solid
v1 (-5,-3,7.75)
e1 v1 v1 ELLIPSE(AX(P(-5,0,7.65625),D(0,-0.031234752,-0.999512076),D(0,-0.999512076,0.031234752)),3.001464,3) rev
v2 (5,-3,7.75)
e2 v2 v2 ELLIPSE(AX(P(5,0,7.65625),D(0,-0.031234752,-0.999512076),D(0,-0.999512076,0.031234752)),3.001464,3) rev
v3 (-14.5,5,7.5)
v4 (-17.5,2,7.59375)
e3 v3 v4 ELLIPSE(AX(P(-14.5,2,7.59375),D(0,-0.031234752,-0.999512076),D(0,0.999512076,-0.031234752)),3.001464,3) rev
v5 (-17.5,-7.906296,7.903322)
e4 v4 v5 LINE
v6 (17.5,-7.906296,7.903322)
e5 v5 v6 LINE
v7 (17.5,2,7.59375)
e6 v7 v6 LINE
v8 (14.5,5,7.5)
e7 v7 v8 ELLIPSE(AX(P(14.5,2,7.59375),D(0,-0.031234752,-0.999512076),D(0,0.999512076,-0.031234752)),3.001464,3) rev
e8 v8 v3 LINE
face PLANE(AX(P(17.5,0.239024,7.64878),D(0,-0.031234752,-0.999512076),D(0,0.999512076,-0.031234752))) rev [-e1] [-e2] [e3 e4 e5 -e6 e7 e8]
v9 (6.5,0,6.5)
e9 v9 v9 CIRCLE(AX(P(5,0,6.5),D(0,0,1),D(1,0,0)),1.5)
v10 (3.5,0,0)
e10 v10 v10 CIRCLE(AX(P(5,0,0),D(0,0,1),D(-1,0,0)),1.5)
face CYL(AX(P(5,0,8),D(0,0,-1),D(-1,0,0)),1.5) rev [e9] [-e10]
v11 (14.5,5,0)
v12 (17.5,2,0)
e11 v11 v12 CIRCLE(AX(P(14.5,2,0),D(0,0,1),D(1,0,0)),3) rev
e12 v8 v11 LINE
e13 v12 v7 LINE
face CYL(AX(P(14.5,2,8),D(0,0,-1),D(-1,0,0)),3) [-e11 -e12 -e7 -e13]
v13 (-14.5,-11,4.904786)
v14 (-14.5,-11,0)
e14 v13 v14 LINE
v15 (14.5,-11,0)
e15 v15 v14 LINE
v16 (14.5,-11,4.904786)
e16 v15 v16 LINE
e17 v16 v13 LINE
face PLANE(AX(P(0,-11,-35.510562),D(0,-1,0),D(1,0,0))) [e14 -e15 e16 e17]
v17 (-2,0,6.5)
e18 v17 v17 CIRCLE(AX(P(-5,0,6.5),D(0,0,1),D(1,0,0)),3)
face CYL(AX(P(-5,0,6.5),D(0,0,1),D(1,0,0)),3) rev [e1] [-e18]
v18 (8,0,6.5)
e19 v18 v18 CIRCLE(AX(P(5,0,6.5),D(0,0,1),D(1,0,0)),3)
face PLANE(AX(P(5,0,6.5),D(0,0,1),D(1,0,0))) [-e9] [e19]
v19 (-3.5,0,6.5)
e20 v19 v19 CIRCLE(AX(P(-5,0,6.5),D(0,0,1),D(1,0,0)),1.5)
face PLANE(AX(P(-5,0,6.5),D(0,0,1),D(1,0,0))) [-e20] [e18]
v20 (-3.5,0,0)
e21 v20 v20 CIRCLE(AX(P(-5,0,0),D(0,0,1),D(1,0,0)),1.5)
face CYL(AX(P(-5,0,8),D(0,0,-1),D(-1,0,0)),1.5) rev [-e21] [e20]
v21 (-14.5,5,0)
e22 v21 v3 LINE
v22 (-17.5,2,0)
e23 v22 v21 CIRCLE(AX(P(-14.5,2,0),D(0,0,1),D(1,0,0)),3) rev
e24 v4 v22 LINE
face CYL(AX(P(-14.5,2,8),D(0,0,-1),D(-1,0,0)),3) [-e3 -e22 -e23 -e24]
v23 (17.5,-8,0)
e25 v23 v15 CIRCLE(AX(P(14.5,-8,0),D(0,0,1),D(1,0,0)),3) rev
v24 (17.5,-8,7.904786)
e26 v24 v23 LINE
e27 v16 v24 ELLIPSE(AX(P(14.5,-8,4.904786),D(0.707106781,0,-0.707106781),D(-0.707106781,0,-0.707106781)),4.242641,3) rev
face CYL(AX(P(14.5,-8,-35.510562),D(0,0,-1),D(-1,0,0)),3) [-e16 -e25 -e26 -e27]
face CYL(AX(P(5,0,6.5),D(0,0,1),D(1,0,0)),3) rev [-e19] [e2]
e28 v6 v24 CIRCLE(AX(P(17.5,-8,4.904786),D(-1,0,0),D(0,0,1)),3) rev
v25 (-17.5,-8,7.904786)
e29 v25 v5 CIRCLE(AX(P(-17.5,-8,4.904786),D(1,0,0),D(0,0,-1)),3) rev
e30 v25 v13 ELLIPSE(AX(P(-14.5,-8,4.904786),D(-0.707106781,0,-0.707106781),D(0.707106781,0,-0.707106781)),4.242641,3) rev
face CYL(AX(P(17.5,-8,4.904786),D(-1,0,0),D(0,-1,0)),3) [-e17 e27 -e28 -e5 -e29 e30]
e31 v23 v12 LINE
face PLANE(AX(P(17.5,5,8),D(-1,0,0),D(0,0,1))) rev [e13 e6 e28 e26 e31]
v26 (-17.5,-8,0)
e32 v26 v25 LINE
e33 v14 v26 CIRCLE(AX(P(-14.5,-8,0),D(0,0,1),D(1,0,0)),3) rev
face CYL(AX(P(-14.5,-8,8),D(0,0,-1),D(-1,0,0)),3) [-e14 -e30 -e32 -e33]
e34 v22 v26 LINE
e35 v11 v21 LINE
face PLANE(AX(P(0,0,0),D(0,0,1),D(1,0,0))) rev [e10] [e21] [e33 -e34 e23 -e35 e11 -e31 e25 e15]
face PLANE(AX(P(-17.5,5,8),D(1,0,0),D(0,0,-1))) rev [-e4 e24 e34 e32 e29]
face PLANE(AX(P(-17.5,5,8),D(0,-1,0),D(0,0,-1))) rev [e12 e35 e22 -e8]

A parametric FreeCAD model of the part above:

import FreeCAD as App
import Part
import Sketcher
from FreeCAD import Vector


def edges_at(feature, points):
    """Names of the edges that pass closest to the given points."""
    edges = feature.Shape.Edges
    near = lambda p: min(range(len(edges)), key=lambda i: edges[i].distToShape(Part.Vertex(*p))[0])
    return sorted({f"Edge{near(p) + 1}" for p in points})


def add_polygon(sketch, points):
    """Adds a closed chain of lines whose ends are joined by coincident constraints."""
    first, n = sketch.GeometryCount, len(points)
    for a, b in zip(points, points[1:] + points[:1]):
        sketch.addGeometry(Part.LineSegment(App.Vector(*a, 0), App.Vector(*b, 0)), False)
    for i in range(n):
        sketch.addConstraint(Sketcher.Constraint("Coincident", first + i, 2, first + (i + 1) % n, 1))

doc = App.newDocument("Part")
body = doc.addObject("PartDesign::Body", "Body")

# Sketch on XY plane
sketch1 = body.newObject("Sketcher::SketchObject", "Sketch")
sketch1.AttachmentSupport = (doc.getObject("XY_Plane"), [""])
sketch1.MapMode = "FlatFace"
add_polygon(sketch1, [(-17.5, 5), (-17.5, -5), (17.5, -5), (17.5, 5)])  # lines 0-3
sketch1.addGeometry(Part.Circle(Vector(-5, 0, 0), Vector(0, 0, 1), 1.5), False)  # 4
sketch1.addGeometry(Part.Circle(Vector(5, 0, 0), Vector(0, 0, 1), 1.5), False)  # 5
sketch1.addConstraint([
    Sketcher.Constraint("Vertical", 0),
    Sketcher.Constraint("Horizontal", 1),
    Sketcher.Constraint("Vertical", 2),
    Sketcher.Constraint("Horizontal", 3),
    Sketcher.Constraint("Equal", 4, 5),
    Sketcher.Constraint("Symmetric", 4, 3, 5, 3, -1, 1),
    Sketcher.Constraint("Symmetric", 0, 2, 2, 2, -1, 1),
    Sketcher.Constraint("PointOnObject", 4, 3, -1),
    Sketcher.Constraint("Diameter", 4, 3.0),
    Sketcher.Constraint("DistanceX", 1, 1, 1, 2, 35.0),
    Sketcher.Constraint("DistanceY", 0, 2, 0, 1, 10.0),
    Sketcher.Constraint("DistanceX", 4, 3, -1, 1, 5.0),
])
pad1 = body.newObject("PartDesign::Pad", "Pad")
pad1.Profile = sketch1
pad1.Length = 8

# Sketch on XY plane
sketch2 = body.newObject("Sketcher::SketchObject", "Sketch001")
sketch2.AttachmentSupport = (doc.getObject("XY_Plane"), [""])
sketch2.MapMode = "FlatFace"
sketch2.AttachmentOffset = App.Placement(Vector(0, 0, 6.5), App.Rotation())
sketch2.addGeometry([
    Part.Circle(Vector(-5, 0, 0), Vector(0, 0, 1), 3),
    Part.Circle(Vector(-5, 0, 0), Vector(0, 0, 1), 1.5),
    Part.Circle(Vector(5, 0, 0), Vector(0, 0, 1), 3),
    Part.Circle(Vector(5, 0, 0), Vector(0, 0, 1), 1.5),
], False)
sketch2.addConstraint([
    Sketcher.Constraint("Coincident", 1, 3, 0, 3),
    Sketcher.Constraint("Coincident", 3, 3, 2, 3),
    Sketcher.Constraint("Equal", 0, 2),
    Sketcher.Constraint("Equal", 1, 3),
    Sketcher.Constraint("Symmetric", 0, 3, 2, 3, -1, 1),
    Sketcher.Constraint("PointOnObject", 0, 3, -1),
    Sketcher.Constraint("Diameter", 0, 6.0),
    Sketcher.Constraint("Diameter", 1, 3.0),
    Sketcher.Constraint("DistanceX", 0, 3, -1, 1, 5.0),
])
pocket1 = body.newObject("PartDesign::Pocket", "Pocket")
pocket1.Profile = sketch2
pocket1.Length = 1.5
pocket1.Reversed = True

# Sketch on XY plane
sketch3 = body.newObject("Sketcher::SketchObject", "Sketch002")
sketch3.AttachmentSupport = (doc.getObject("XY_Plane"), [""])
sketch3.MapMode = "FlatFace"
sketch3.AttachmentOffset = App.Placement(Vector(0, 0, 8), App.Rotation())
add_polygon(sketch3, [(-17.5, -5), (-17.5, -11), (17.5, -11), (17.5, -5)])  # lines 0-3
sketch3.addConstraint([
    Sketcher.Constraint("Vertical", 0),
    Sketcher.Constraint("Horizontal", 1),
    Sketcher.Constraint("Vertical", 2),
    Sketcher.Constraint("Horizontal", 3),
    Sketcher.Constraint("DistanceX", 1, 1, 1, 2, 35.0),
    Sketcher.Constraint("DistanceY", 0, 2, 0, 1, 6.0),
    Sketcher.Constraint("DistanceY", 0, 2, -1, 1, 11.0),
    Sketcher.Constraint("DistanceX", 0, 2, -1, 1, 17.5),
])
pad2 = body.newObject("PartDesign::Pad", "Pad001")
pad2.Profile = sketch3
pad2.Length = 8
pad2.Reversed = True

# Sketch on YZ plane
sketch4 = body.newObject("Sketcher::SketchObject", "Sketch003")
sketch4.AttachmentSupport = (doc.getObject("YZ_Plane"), [""])
sketch4.MapMode = "FlatFace"
sketch4.AttachmentOffset = App.Placement(Vector(0, 0, -17.5), App.Rotation())
add_polygon(sketch4, [(5, 8), (5, 7.5), (-11, 8)])  # lines 0-2
sketch4.addConstraint([
    Sketcher.Constraint("Vertical", 0),
    Sketcher.Constraint("Horizontal", 2),
    Sketcher.Constraint("DistanceX", 2, 1, 2, 2, 16.0),
    Sketcher.Constraint("DistanceY", 0, 2, 0, 1, 0.5),
    Sketcher.Constraint("DistanceX", -1, 1, 0, 2, 5.0),
    Sketcher.Constraint("DistanceY", -1, 1, 1, 2, 8.0),
])
pocket2 = body.newObject("PartDesign::Pocket", "Pocket001")
pocket2.Profile = sketch4
pocket2.Type = "ThroughAll"
pocket2.Reversed = True
doc.recompute()

fillet = body.newObject("PartDesign::Fillet", "Fillet")
fillet.Base = (pocket2, edges_at(pocket2, [
    (0, -11, 8),
    (-17.5, -11, 4),
    (17.5, -11, 4),
    (-17.5, 5, 3.75),
    (17.5, 5, 3.75),
]))
fillet.Radius = 3

doc.recompute()
